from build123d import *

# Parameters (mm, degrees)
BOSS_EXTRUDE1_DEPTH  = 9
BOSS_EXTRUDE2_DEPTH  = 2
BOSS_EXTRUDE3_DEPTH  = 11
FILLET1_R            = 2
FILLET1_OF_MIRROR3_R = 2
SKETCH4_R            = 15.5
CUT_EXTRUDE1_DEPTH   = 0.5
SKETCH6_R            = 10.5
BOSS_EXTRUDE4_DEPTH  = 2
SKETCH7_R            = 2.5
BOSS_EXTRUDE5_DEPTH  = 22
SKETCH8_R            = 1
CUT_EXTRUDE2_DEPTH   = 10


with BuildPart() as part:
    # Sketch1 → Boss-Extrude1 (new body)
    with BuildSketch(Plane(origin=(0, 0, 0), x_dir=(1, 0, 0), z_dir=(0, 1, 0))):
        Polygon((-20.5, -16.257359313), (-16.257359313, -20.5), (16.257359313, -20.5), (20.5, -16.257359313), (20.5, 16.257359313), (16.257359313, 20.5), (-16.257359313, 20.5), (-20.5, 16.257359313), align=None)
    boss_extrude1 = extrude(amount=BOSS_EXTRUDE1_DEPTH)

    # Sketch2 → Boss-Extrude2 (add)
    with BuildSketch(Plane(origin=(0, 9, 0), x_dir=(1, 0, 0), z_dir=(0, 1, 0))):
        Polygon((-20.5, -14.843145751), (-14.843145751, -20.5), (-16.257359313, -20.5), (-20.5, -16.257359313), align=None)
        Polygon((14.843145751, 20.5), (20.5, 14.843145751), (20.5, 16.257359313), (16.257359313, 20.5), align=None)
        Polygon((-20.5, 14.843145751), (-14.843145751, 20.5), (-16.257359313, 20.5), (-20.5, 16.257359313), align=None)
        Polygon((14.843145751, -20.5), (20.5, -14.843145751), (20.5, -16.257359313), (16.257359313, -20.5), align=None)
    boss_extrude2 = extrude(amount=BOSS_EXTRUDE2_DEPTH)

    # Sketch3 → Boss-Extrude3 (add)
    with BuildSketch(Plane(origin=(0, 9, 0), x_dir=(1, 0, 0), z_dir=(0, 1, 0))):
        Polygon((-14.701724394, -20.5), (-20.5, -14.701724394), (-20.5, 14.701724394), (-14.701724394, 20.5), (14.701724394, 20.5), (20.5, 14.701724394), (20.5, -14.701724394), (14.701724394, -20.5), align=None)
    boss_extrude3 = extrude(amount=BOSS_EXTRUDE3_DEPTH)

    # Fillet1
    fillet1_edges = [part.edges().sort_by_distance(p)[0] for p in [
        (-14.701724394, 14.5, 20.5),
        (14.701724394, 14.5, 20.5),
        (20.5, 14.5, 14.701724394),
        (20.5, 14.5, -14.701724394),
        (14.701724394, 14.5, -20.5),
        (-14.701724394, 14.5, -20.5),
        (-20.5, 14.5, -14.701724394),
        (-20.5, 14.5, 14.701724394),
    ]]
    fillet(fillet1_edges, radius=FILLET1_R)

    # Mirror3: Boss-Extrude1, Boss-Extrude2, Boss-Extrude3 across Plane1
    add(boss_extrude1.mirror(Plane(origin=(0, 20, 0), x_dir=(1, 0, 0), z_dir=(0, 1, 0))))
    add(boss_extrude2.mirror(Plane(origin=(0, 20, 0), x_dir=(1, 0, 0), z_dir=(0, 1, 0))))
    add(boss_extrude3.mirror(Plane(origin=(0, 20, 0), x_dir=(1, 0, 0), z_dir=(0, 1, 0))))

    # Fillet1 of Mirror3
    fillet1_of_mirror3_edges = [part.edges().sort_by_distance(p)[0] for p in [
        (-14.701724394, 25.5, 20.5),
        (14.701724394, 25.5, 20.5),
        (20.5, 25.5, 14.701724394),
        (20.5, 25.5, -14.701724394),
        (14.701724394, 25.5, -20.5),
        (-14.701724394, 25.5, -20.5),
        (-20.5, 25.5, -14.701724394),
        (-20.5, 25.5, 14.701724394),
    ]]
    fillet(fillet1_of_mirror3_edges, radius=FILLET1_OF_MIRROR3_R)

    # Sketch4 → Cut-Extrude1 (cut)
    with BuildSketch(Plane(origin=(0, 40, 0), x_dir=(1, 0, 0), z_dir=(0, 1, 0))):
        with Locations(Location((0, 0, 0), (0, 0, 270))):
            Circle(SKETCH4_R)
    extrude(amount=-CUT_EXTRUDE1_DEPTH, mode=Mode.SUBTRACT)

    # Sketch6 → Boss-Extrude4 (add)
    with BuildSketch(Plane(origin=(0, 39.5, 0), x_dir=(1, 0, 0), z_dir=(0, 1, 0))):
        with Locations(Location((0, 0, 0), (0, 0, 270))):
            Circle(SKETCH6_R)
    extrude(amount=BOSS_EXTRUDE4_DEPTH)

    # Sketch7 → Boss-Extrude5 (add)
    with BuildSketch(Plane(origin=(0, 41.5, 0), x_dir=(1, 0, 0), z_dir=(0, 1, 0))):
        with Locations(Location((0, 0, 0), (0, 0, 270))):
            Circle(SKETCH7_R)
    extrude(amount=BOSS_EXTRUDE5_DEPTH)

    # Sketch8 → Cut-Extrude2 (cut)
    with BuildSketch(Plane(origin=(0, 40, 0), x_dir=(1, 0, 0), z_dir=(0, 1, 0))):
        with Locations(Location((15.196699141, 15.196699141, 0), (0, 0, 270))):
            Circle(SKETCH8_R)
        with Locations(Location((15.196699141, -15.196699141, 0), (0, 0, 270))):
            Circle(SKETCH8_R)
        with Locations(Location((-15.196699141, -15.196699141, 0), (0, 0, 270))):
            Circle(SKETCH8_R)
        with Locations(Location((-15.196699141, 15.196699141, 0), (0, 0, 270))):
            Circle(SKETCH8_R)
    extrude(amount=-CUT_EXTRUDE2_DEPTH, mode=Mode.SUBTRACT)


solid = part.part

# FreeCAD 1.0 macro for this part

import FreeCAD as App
import Part
import Sketcher
from FreeCAD import Vector


def edges_at(feature, points):
    """Names of the edges that pass closest to the given points."""
    edges = feature.Shape.Edges
    near = lambda p: min(range(len(edges)), key=lambda i: edges[i].distToShape(Part.Vertex(*p))[0])
    return sorted({f"Edge{near(p) + 1}" for p in points})

doc = App.newDocument("Part")
params = doc.addObject("Spreadsheet::Sheet", "Params")
for row, (alias, value) in enumerate([
    ("sketch1_length", "6 mm"),
    ("pad1_length", "9 mm"),
    ("sketch2_length", "8 mm"),
    ("sketch2_length2", "6 mm"),
    ("pad2_length", "2 mm"),
    ("sketch3_length", "8.2 mm"),
    ("pad3_length", "11 mm"),
    ("fillet_radius", "2 mm"),
    ("fillet2_radius", "2 mm"),
    ("sketch4_diameter", "31 mm"),
    ("pocket1_length", "0.5 mm"),
    ("sketch5_diameter", "21 mm"),
    ("pad4_length", "2 mm"),
    ("sketch6_diameter", "5 mm"),
    ("pad5_length", "22 mm"),
    ("sketch7_diameter", "2 mm"),
    ("pocket2_length", "10 mm"),
], start=1):
    params.set(f"A{row}", alias)
    params.set(f"B{row}", "=" + value)
    params.setAlias(f"B{row}", alias)

body = doc.addObject("PartDesign::Body", "Body")

# Sketch on XZ plane
sketch1 = body.newObject("Sketcher::SketchObject", "Sketch")
sketch1.AttachmentSupport = (doc.getObject("XZ_Plane"), [""])
sketch1.MapMode = "FlatFace"
sketch1.addGeometry(Part.LineSegment(Vector(-20.5, 16.257359, 0), Vector(-16.257359, 20.5, 0)), False)
sketch1.addGeometry(Part.LineSegment(Vector(-16.257359, 20.5, 0), Vector(16.257359, 20.5, 0)), False)
sketch1.addGeometry(Part.LineSegment(Vector(16.257359, 20.5, 0), Vector(20.5, 16.257359, 0)), False)
sketch1.addGeometry(Part.LineSegment(Vector(20.5, 16.257359, 0), Vector(20.5, -16.257359, 0)), False)
sketch1.addGeometry(Part.LineSegment(Vector(20.5, -16.257359, 0), Vector(16.257359, -20.5, 0)), False)
sketch1.addGeometry(Part.LineSegment(Vector(16.257359, -20.5, 0), Vector(-16.257359, -20.5, 0)), False)
sketch1.addGeometry(Part.LineSegment(Vector(-16.257359, -20.5, 0), Vector(-20.5, -16.257359, 0)), False)
sketch1.addGeometry(Part.LineSegment(Vector(-20.5, -16.257359, 0), Vector(-20.5, 16.257359, 0)), False)
sketch1.addConstraint(Sketcher.Constraint("Coincident", 0, 2, 1, 1))
sketch1.addConstraint(Sketcher.Constraint("Coincident", 1, 2, 2, 1))
sketch1.addConstraint(Sketcher.Constraint("Coincident", 2, 2, 3, 1))
sketch1.addConstraint(Sketcher.Constraint("Coincident", 3, 2, 4, 1))
sketch1.addConstraint(Sketcher.Constraint("Coincident", 4, 2, 5, 1))
sketch1.addConstraint(Sketcher.Constraint("Coincident", 5, 2, 6, 1))
sketch1.addConstraint(Sketcher.Constraint("Coincident", 6, 2, 7, 1))
sketch1.addConstraint(Sketcher.Constraint("Coincident", 7, 2, 0, 1))
sketch1.addConstraint(Sketcher.Constraint("Horizontal", 1))
sketch1.addConstraint(Sketcher.Constraint("Vertical", 3))
sketch1.addConstraint(Sketcher.Constraint("Horizontal", 5))
sketch1.addConstraint(Sketcher.Constraint("Vertical", 7))
sketch1.addConstraint(Sketcher.Constraint("Symmetric", 0, 2, 4, 2, -1, 1))
sketch1.addConstraint(Sketcher.Constraint("Symmetric", 2, 2, 6, 2, -1, 1))
sketch1.addConstraint(Sketcher.Constraint("Perpendicular", 0, 2))
sketch1.addConstraint(Sketcher.Constraint("Perpendicular", 2, 4))
sketch1.addConstraint(Sketcher.Constraint("Perpendicular", 4, 6))
sketch1.addConstraint(Sketcher.Constraint("Horizontal", 3, 2, 6, 2))
sketch1.addConstraint(Sketcher.Constraint("Vertical", 1, 2, 4, 2))
sketch1.addConstraint(Sketcher.Constraint("Equal", 5, 3))
sketch1.addConstraint(Sketcher.Constraint("Distance", 0, 6.0))
sketch1.addConstraint(Sketcher.Constraint("DistanceY", 4, 2, 1, 2, 41.0))
sketch1.setExpression("Constraints[20]", "Params.sketch1_length")
pad1 = body.newObject("PartDesign::Pad", "Pad")
pad1.Profile = sketch1
pad1.setExpression("Length", "Params.pad1_length")
pad1.Reversed = True

# Sketch on XZ plane
sketch2 = body.newObject("Sketcher::SketchObject", "Sketch001")
sketch2.AttachmentSupport = (doc.getObject("XZ_Plane"), [""])
sketch2.MapMode = "FlatFace"
sketch2.AttachmentOffset = App.Placement(Vector(0, 0, -9), App.Rotation())
sketch2.addGeometry(Part.LineSegment(Vector(-14.843146, 20.5, 0), Vector(-20.5, 14.843146, 0)), False)
sketch2.addGeometry(Part.LineSegment(Vector(-20.5, 14.843146, 0), Vector(-20.5, 16.257359, 0)), False)
sketch2.addGeometry(Part.LineSegment(Vector(-20.5, 16.257359, 0), Vector(-16.257359, 20.5, 0)), False)
sketch2.addGeometry(Part.LineSegment(Vector(-16.257359, 20.5, 0), Vector(-14.843146, 20.5, 0)), False)
sketch2.addGeometry(Part.LineSegment(Vector(14.843146, -20.5, 0), Vector(20.5, -14.843146, 0)), False)
sketch2.addGeometry(Part.LineSegment(Vector(20.5, -14.843146, 0), Vector(20.5, -16.257359, 0)), False)
sketch2.addGeometry(Part.LineSegment(Vector(20.5, -16.257359, 0), Vector(16.257359, -20.5, 0)), False)
sketch2.addGeometry(Part.LineSegment(Vector(16.257359, -20.5, 0), Vector(14.843146, -20.5, 0)), False)
sketch2.addGeometry(Part.LineSegment(Vector(-20.5, -14.843146, 0), Vector(-14.843146, -20.5, 0)), False)
sketch2.addGeometry(Part.LineSegment(Vector(-14.843146, -20.5, 0), Vector(-16.257359, -20.5, 0)), False)
sketch2.addGeometry(Part.LineSegment(Vector(-16.257359, -20.5, 0), Vector(-20.5, -16.257359, 0)), False)
sketch2.addGeometry(Part.LineSegment(Vector(-20.5, -16.257359, 0), Vector(-20.5, -14.843146, 0)), False)
sketch2.addGeometry(Part.LineSegment(Vector(20.5, 14.843146, 0), Vector(14.843146, 20.5, 0)), False)
sketch2.addGeometry(Part.LineSegment(Vector(14.843146, 20.5, 0), Vector(16.257359, 20.5, 0)), False)
sketch2.addGeometry(Part.LineSegment(Vector(16.257359, 20.5, 0), Vector(20.5, 16.257359, 0)), False)
sketch2.addGeometry(Part.LineSegment(Vector(20.5, 16.257359, 0), Vector(20.5, 14.843146, 0)), False)
sketch2.addConstraint(Sketcher.Constraint("Coincident", 0, 2, 1, 1))
sketch2.addConstraint(Sketcher.Constraint("Coincident", 1, 2, 2, 1))
sketch2.addConstraint(Sketcher.Constraint("Coincident", 2, 2, 3, 1))
sketch2.addConstraint(Sketcher.Constraint("Coincident", 3, 2, 0, 1))
sketch2.addConstraint(Sketcher.Constraint("Coincident", 4, 2, 5, 1))
sketch2.addConstraint(Sketcher.Constraint("Coincident", 5, 2, 6, 1))
sketch2.addConstraint(Sketcher.Constraint("Coincident", 6, 2, 7, 1))
sketch2.addConstraint(Sketcher.Constraint("Coincident", 7, 2, 4, 1))
sketch2.addConstraint(Sketcher.Constraint("Coincident", 8, 2, 9, 1))
sketch2.addConstraint(Sketcher.Constraint("Coincident", 9, 2, 10, 1))
sketch2.addConstraint(Sketcher.Constraint("Coincident", 10, 2, 11, 1))
sketch2.addConstraint(Sketcher.Constraint("Coincident", 11, 2, 8, 1))
sketch2.addConstraint(Sketcher.Constraint("Coincident", 12, 2, 13, 1))
sketch2.addConstraint(Sketcher.Constraint("Coincident", 13, 2, 14, 1))
sketch2.addConstraint(Sketcher.Constraint("Coincident", 14, 2, 15, 1))
sketch2.addConstraint(Sketcher.Constraint("Coincident", 15, 2, 12, 1))
sketch2.addConstraint(Sketcher.Constraint("Vertical", 1))
sketch2.addConstraint(Sketcher.Constraint("Horizontal", 3))
sketch2.addConstraint(Sketcher.Constraint("Vertical", 5))
sketch2.addConstraint(Sketcher.Constraint("Horizontal", 7))
sketch2.addConstraint(Sketcher.Constraint("Horizontal", 9))
sketch2.addConstraint(Sketcher.Constraint("Vertical", 11))
sketch2.addConstraint(Sketcher.Constraint("Horizontal", 13))
sketch2.addConstraint(Sketcher.Constraint("Vertical", 15))
sketch2.addConstraint(Sketcher.Constraint("Symmetric", 0, 2, 4, 2, -1, 1))
sketch2.addConstraint(Sketcher.Constraint("Symmetric", 2, 2, 6, 2, -1, 1))
sketch2.addConstraint(Sketcher.Constraint("Symmetric", 8, 2, 12, 2, -1, 1))
sketch2.addConstraint(Sketcher.Constraint("Symmetric", 10, 2, 14, 2, -1, 1))
sketch2.addConstraint(Sketcher.Constraint("Symmetric", 7, 2, 8, 2, -2))
sketch2.addConstraint(Sketcher.Constraint("Symmetric", 5, 2, 10, 2, -2))
sketch2.addConstraint(Sketcher.Constraint("Parallel", 0, 2))
sketch2.addConstraint(Sketcher.Constraint("Parallel", 2, 4))
sketch2.addConstraint(Sketcher.Constraint("Parallel", 4, 6))
sketch2.addConstraint(Sketcher.Constraint("Perpendicular", 6, 8))
sketch2.addConstraint(Sketcher.Constraint("Parallel", 8, 10))
sketch2.addConstraint(Sketcher.Constraint("Parallel", 10, 12))
sketch2.addConstraint(Sketcher.Constraint("Parallel", 12, 14))
sketch2.addConstraint(Sketcher.Constraint("Horizontal", 4, 2, 11, 2))
sketch2.addConstraint(Sketcher.Constraint("Distance", 0, 8.0))
sketch2.addConstraint(Sketcher.Constraint("Distance", 2, 6.0))
sketch2.addConstraint(Sketcher.Constraint("DistanceX", 0, 2, 4, 2, 41.0))
sketch2.addConstraint(Sketcher.Constraint("DistanceY", 6, 2, 3, 2, 41.0))
sketch2.setExpression("Constraints[38]", "Params.sketch2_length")
sketch2.setExpression("Constraints[39]", "Params.sketch2_length2")
pad2 = body.newObject("PartDesign::Pad", "Pad001")
pad2.Profile = sketch2
pad2.setExpression("Length", "Params.pad2_length")
pad2.Reversed = True

# Sketch on XZ plane
sketch3 = body.newObject("Sketcher::SketchObject", "Sketch002")
sketch3.AttachmentSupport = (doc.getObject("XZ_Plane"), [""])
sketch3.MapMode = "FlatFace"
sketch3.AttachmentOffset = App.Placement(Vector(0, 0, -9), App.Rotation())
sketch3.addGeometry(Part.LineSegment(Vector(-20.5, 14.701724, 0), Vector(-14.701724, 20.5, 0)), False)
sketch3.addGeometry(Part.LineSegment(Vector(-14.701724, 20.5, 0), Vector(14.701724, 20.5, 0)), False)
sketch3.addGeometry(Part.LineSegment(Vector(14.701724, 20.5, 0), Vector(20.5, 14.701724, 0)), False)
sketch3.addGeometry(Part.LineSegment(Vector(20.5, 14.701724, 0), Vector(20.5, -14.701724, 0)), False)
sketch3.addGeometry(Part.LineSegment(Vector(20.5, -14.701724, 0), Vector(14.701724, -20.5, 0)), False)
sketch3.addGeometry(Part.LineSegment(Vector(14.701724, -20.5, 0), Vector(-14.701724, -20.5, 0)), False)
sketch3.addGeometry(Part.LineSegment(Vector(-14.701724, -20.5, 0), Vector(-20.5, -14.701724, 0)), False)
sketch3.addGeometry(Part.LineSegment(Vector(-20.5, -14.701724, 0), Vector(-20.5, 14.701724, 0)), False)
sketch3.addConstraint(Sketcher.Constraint("Coincident", 0, 2, 1, 1))
sketch3.addConstraint(Sketcher.Constraint("Coincident", 1, 2, 2, 1))
sketch3.addConstraint(Sketcher.Constraint("Coincident", 2, 2, 3, 1))
sketch3.addConstraint(Sketcher.Constraint("Coincident", 3, 2, 4, 1))
sketch3.addConstraint(Sketcher.Constraint("Coincident", 4, 2, 5, 1))
sketch3.addConstraint(Sketcher.Constraint("Coincident", 5, 2, 6, 1))
sketch3.addConstraint(Sketcher.Constraint("Coincident", 6, 2, 7, 1))
sketch3.addConstraint(Sketcher.Constraint("Coincident", 7, 2, 0, 1))
sketch3.addConstraint(Sketcher.Constraint("Horizontal", 1))
sketch3.addConstraint(Sketcher.Constraint("Vertical", 3))
sketch3.addConstraint(Sketcher.Constraint("Horizontal", 5))
sketch3.addConstraint(Sketcher.Constraint("Vertical", 7))
sketch3.addConstraint(Sketcher.Constraint("Symmetric", 0, 2, 4, 2, -1, 1))
sketch3.addConstraint(Sketcher.Constraint("Symmetric", 2, 2, 6, 2, -1, 1))
sketch3.addConstraint(Sketcher.Constraint("Perpendicular", 0, 2))
sketch3.addConstraint(Sketcher.Constraint("Perpendicular", 2, 4))
sketch3.addConstraint(Sketcher.Constraint("Perpendicular", 4, 6))
sketch3.addConstraint(Sketcher.Constraint("Horizontal", 3, 2, 6, 2))
sketch3.addConstraint(Sketcher.Constraint("Vertical", 1, 2, 4, 2))
sketch3.addConstraint(Sketcher.Constraint("Equal", 5, 3))
sketch3.addConstraint(Sketcher.Constraint("DistanceY", 4, 2, 1, 2, 41.0))
sketch3.addConstraint(Sketcher.Constraint("Distance", 0, 8.2))
sketch3.setExpression("Constraints[21]", "Params.sketch3_length")
pad3 = body.newObject("PartDesign::Pad", "Pad002")
pad3.Profile = sketch3
pad3.setExpression("Length", "Params.pad3_length")
pad3.Reversed = True
doc.recompute()

fillet = body.newObject("PartDesign::Fillet", "Fillet")
fillet.Base = (pad3, edges_at(pad3, [
    (-14.702, 14.5, 20.5),
    (14.702, 14.5, 20.5),
    (20.5, 14.5, 14.702),
    (20.5, 14.5, -14.702),
    (14.702, 14.5, -20.5),
    (-14.702, 14.5, -20.5),
    (-20.5, 14.5, -14.702),
    (-20.5, 14.5, 14.702),
]))
fillet.setExpression("Radius", "Params.fillet_radius")
doc.recompute()

datumplane = body.newObject("PartDesign::Plane", "DatumPlane")
datumplane.AttachmentSupport = (doc.getObject("XZ_Plane"), [""])
datumplane.MapMode = "FlatFace"
datumplane.AttachmentOffset = App.Placement(Vector(0, 0, -20), App.Rotation())
mirrored = body.newObject("PartDesign::Mirrored", "Mirrored")
mirrored.Originals = [pad1, pad2, pad3]
mirrored.MirrorPlane = (datumplane, [""])
body.Tip = mirrored
doc.recompute()

fillet2 = body.newObject("PartDesign::Fillet", "Fillet001")
fillet2.Base = (mirrored, edges_at(mirrored, [
    (-14.702, 25.5, 20.5),
    (14.702, 25.5, 20.5),
    (20.5, 25.5, 14.702),
    (20.5, 25.5, -14.702),
    (14.702, 25.5, -20.5),
    (-14.702, 25.5, -20.5),
    (-20.5, 25.5, -14.702),
    (-20.5, 25.5, 14.702),
]))
fillet2.setExpression("Radius", "Params.fillet2_radius")

# Sketch on XZ plane
sketch4 = body.newObject("Sketcher::SketchObject", "Sketch003")
sketch4.AttachmentSupport = (doc.getObject("XZ_Plane"), [""])
sketch4.MapMode = "FlatFace"
sketch4.AttachmentOffset = App.Placement(Vector(0, 0, -40), App.Rotation())
sketch4.addGeometry(Part.Circle(Vector(0, 0, 0), Vector(0, 0, 1), 15.5), False)
sketch4.addConstraint(Sketcher.Constraint("Coincident", 0, 3, -1, 1))
sketch4.addConstraint(Sketcher.Constraint("Diameter", 0, 31.0))
sketch4.setExpression("Constraints[1]", "Params.sketch4_diameter")
pocket1 = body.newObject("PartDesign::Pocket", "Pocket")
pocket1.Profile = sketch4
pocket1.setExpression("Length", "Params.pocket1_length")
pocket1.Reversed = True

# Sketch on XZ plane
sketch5 = body.newObject("Sketcher::SketchObject", "Sketch004")
sketch5.AttachmentSupport = (doc.getObject("XZ_Plane"), [""])
sketch5.MapMode = "FlatFace"
sketch5.AttachmentOffset = App.Placement(Vector(0, 0, -39.5), App.Rotation())
sketch5.addGeometry(Part.Circle(Vector(0, 0, 0), Vector(0, 0, 1), 10.5), False)
sketch5.addConstraint(Sketcher.Constraint("Coincident", 0, 3, -1, 1))
sketch5.addConstraint(Sketcher.Constraint("Diameter", 0, 21.0))
sketch5.setExpression("Constraints[1]", "Params.sketch5_diameter")
pad4 = body.newObject("PartDesign::Pad", "Pad003")
pad4.Profile = sketch5
pad4.setExpression("Length", "Params.pad4_length")
pad4.Reversed = True

# Sketch on XZ plane
sketch6 = body.newObject("Sketcher::SketchObject", "Sketch005")
sketch6.AttachmentSupport = (doc.getObject("XZ_Plane"), [""])
sketch6.MapMode = "FlatFace"
sketch6.AttachmentOffset = App.Placement(Vector(0, 0, -41.5), App.Rotation())
sketch6.addGeometry(Part.Circle(Vector(0, 0, 0), Vector(0, 0, 1), 2.5), False)
sketch6.addConstraint(Sketcher.Constraint("Coincident", 0, 3, -1, 1))
sketch6.addConstraint(Sketcher.Constraint("Diameter", 0, 5.0))
sketch6.setExpression("Constraints[1]", "Params.sketch6_diameter")
pad5 = body.newObject("PartDesign::Pad", "Pad004")
pad5.Profile = sketch6
pad5.setExpression("Length", "Params.pad5_length")
pad5.Reversed = True

# Sketch on XZ plane
sketch7 = body.newObject("Sketcher::SketchObject", "Sketch006")
sketch7.AttachmentSupport = (doc.getObject("XZ_Plane"), [""])
sketch7.MapMode = "FlatFace"
sketch7.AttachmentOffset = App.Placement(Vector(0, 0, -40), App.Rotation())
sketch7.addGeometry(Part.Circle(Vector(15.196699, -15.196699, 0), Vector(0, 0, 1), 1), False)
sketch7.addGeometry(Part.Circle(Vector(15.196699, 15.196699, 0), Vector(0, 0, 1), 1), False)
sketch7.addGeometry(Part.Circle(Vector(-15.196699, 15.196699, 0), Vector(0, 0, 1), 1), False)
sketch7.addGeometry(Part.Circle(Vector(-15.196699, -15.196699, 0), Vector(0, 0, 1), 1), False)
sketch7.addConstraint(Sketcher.Constraint("Equal", 0, 1))
sketch7.addConstraint(Sketcher.Constraint("Equal", 1, 2))
sketch7.addConstraint(Sketcher.Constraint("Equal", 2, 3))
sketch7.addConstraint(Sketcher.Constraint("Symmetric", 0, 3, 2, 3, -1, 1))
sketch7.addConstraint(Sketcher.Constraint("Symmetric", 1, 3, 3, 3, -1, 1))
sketch7.addConstraint(Sketcher.Constraint("Symmetric", 1, 3, 2, 3, -2))
sketch7.addConstraint(Sketcher.Constraint("Diameter", 0, 2.0))
sketch7.addConstraint(Sketcher.Constraint("DistanceX", -1, 1, 0, 3, 15.196699))
sketch7.addConstraint(Sketcher.Constraint("DistanceY", 0, 3, -1, 1, 15.196699))
sketch7.setExpression("Constraints[6]", "Params.sketch7_diameter")
pocket2 = body.newObject("PartDesign::Pocket", "Pocket001")
pocket2.Profile = sketch7
pocket2.setExpression("Length", "Params.pocket2_length")
pocket2.Reversed = True

doc.recompute()
